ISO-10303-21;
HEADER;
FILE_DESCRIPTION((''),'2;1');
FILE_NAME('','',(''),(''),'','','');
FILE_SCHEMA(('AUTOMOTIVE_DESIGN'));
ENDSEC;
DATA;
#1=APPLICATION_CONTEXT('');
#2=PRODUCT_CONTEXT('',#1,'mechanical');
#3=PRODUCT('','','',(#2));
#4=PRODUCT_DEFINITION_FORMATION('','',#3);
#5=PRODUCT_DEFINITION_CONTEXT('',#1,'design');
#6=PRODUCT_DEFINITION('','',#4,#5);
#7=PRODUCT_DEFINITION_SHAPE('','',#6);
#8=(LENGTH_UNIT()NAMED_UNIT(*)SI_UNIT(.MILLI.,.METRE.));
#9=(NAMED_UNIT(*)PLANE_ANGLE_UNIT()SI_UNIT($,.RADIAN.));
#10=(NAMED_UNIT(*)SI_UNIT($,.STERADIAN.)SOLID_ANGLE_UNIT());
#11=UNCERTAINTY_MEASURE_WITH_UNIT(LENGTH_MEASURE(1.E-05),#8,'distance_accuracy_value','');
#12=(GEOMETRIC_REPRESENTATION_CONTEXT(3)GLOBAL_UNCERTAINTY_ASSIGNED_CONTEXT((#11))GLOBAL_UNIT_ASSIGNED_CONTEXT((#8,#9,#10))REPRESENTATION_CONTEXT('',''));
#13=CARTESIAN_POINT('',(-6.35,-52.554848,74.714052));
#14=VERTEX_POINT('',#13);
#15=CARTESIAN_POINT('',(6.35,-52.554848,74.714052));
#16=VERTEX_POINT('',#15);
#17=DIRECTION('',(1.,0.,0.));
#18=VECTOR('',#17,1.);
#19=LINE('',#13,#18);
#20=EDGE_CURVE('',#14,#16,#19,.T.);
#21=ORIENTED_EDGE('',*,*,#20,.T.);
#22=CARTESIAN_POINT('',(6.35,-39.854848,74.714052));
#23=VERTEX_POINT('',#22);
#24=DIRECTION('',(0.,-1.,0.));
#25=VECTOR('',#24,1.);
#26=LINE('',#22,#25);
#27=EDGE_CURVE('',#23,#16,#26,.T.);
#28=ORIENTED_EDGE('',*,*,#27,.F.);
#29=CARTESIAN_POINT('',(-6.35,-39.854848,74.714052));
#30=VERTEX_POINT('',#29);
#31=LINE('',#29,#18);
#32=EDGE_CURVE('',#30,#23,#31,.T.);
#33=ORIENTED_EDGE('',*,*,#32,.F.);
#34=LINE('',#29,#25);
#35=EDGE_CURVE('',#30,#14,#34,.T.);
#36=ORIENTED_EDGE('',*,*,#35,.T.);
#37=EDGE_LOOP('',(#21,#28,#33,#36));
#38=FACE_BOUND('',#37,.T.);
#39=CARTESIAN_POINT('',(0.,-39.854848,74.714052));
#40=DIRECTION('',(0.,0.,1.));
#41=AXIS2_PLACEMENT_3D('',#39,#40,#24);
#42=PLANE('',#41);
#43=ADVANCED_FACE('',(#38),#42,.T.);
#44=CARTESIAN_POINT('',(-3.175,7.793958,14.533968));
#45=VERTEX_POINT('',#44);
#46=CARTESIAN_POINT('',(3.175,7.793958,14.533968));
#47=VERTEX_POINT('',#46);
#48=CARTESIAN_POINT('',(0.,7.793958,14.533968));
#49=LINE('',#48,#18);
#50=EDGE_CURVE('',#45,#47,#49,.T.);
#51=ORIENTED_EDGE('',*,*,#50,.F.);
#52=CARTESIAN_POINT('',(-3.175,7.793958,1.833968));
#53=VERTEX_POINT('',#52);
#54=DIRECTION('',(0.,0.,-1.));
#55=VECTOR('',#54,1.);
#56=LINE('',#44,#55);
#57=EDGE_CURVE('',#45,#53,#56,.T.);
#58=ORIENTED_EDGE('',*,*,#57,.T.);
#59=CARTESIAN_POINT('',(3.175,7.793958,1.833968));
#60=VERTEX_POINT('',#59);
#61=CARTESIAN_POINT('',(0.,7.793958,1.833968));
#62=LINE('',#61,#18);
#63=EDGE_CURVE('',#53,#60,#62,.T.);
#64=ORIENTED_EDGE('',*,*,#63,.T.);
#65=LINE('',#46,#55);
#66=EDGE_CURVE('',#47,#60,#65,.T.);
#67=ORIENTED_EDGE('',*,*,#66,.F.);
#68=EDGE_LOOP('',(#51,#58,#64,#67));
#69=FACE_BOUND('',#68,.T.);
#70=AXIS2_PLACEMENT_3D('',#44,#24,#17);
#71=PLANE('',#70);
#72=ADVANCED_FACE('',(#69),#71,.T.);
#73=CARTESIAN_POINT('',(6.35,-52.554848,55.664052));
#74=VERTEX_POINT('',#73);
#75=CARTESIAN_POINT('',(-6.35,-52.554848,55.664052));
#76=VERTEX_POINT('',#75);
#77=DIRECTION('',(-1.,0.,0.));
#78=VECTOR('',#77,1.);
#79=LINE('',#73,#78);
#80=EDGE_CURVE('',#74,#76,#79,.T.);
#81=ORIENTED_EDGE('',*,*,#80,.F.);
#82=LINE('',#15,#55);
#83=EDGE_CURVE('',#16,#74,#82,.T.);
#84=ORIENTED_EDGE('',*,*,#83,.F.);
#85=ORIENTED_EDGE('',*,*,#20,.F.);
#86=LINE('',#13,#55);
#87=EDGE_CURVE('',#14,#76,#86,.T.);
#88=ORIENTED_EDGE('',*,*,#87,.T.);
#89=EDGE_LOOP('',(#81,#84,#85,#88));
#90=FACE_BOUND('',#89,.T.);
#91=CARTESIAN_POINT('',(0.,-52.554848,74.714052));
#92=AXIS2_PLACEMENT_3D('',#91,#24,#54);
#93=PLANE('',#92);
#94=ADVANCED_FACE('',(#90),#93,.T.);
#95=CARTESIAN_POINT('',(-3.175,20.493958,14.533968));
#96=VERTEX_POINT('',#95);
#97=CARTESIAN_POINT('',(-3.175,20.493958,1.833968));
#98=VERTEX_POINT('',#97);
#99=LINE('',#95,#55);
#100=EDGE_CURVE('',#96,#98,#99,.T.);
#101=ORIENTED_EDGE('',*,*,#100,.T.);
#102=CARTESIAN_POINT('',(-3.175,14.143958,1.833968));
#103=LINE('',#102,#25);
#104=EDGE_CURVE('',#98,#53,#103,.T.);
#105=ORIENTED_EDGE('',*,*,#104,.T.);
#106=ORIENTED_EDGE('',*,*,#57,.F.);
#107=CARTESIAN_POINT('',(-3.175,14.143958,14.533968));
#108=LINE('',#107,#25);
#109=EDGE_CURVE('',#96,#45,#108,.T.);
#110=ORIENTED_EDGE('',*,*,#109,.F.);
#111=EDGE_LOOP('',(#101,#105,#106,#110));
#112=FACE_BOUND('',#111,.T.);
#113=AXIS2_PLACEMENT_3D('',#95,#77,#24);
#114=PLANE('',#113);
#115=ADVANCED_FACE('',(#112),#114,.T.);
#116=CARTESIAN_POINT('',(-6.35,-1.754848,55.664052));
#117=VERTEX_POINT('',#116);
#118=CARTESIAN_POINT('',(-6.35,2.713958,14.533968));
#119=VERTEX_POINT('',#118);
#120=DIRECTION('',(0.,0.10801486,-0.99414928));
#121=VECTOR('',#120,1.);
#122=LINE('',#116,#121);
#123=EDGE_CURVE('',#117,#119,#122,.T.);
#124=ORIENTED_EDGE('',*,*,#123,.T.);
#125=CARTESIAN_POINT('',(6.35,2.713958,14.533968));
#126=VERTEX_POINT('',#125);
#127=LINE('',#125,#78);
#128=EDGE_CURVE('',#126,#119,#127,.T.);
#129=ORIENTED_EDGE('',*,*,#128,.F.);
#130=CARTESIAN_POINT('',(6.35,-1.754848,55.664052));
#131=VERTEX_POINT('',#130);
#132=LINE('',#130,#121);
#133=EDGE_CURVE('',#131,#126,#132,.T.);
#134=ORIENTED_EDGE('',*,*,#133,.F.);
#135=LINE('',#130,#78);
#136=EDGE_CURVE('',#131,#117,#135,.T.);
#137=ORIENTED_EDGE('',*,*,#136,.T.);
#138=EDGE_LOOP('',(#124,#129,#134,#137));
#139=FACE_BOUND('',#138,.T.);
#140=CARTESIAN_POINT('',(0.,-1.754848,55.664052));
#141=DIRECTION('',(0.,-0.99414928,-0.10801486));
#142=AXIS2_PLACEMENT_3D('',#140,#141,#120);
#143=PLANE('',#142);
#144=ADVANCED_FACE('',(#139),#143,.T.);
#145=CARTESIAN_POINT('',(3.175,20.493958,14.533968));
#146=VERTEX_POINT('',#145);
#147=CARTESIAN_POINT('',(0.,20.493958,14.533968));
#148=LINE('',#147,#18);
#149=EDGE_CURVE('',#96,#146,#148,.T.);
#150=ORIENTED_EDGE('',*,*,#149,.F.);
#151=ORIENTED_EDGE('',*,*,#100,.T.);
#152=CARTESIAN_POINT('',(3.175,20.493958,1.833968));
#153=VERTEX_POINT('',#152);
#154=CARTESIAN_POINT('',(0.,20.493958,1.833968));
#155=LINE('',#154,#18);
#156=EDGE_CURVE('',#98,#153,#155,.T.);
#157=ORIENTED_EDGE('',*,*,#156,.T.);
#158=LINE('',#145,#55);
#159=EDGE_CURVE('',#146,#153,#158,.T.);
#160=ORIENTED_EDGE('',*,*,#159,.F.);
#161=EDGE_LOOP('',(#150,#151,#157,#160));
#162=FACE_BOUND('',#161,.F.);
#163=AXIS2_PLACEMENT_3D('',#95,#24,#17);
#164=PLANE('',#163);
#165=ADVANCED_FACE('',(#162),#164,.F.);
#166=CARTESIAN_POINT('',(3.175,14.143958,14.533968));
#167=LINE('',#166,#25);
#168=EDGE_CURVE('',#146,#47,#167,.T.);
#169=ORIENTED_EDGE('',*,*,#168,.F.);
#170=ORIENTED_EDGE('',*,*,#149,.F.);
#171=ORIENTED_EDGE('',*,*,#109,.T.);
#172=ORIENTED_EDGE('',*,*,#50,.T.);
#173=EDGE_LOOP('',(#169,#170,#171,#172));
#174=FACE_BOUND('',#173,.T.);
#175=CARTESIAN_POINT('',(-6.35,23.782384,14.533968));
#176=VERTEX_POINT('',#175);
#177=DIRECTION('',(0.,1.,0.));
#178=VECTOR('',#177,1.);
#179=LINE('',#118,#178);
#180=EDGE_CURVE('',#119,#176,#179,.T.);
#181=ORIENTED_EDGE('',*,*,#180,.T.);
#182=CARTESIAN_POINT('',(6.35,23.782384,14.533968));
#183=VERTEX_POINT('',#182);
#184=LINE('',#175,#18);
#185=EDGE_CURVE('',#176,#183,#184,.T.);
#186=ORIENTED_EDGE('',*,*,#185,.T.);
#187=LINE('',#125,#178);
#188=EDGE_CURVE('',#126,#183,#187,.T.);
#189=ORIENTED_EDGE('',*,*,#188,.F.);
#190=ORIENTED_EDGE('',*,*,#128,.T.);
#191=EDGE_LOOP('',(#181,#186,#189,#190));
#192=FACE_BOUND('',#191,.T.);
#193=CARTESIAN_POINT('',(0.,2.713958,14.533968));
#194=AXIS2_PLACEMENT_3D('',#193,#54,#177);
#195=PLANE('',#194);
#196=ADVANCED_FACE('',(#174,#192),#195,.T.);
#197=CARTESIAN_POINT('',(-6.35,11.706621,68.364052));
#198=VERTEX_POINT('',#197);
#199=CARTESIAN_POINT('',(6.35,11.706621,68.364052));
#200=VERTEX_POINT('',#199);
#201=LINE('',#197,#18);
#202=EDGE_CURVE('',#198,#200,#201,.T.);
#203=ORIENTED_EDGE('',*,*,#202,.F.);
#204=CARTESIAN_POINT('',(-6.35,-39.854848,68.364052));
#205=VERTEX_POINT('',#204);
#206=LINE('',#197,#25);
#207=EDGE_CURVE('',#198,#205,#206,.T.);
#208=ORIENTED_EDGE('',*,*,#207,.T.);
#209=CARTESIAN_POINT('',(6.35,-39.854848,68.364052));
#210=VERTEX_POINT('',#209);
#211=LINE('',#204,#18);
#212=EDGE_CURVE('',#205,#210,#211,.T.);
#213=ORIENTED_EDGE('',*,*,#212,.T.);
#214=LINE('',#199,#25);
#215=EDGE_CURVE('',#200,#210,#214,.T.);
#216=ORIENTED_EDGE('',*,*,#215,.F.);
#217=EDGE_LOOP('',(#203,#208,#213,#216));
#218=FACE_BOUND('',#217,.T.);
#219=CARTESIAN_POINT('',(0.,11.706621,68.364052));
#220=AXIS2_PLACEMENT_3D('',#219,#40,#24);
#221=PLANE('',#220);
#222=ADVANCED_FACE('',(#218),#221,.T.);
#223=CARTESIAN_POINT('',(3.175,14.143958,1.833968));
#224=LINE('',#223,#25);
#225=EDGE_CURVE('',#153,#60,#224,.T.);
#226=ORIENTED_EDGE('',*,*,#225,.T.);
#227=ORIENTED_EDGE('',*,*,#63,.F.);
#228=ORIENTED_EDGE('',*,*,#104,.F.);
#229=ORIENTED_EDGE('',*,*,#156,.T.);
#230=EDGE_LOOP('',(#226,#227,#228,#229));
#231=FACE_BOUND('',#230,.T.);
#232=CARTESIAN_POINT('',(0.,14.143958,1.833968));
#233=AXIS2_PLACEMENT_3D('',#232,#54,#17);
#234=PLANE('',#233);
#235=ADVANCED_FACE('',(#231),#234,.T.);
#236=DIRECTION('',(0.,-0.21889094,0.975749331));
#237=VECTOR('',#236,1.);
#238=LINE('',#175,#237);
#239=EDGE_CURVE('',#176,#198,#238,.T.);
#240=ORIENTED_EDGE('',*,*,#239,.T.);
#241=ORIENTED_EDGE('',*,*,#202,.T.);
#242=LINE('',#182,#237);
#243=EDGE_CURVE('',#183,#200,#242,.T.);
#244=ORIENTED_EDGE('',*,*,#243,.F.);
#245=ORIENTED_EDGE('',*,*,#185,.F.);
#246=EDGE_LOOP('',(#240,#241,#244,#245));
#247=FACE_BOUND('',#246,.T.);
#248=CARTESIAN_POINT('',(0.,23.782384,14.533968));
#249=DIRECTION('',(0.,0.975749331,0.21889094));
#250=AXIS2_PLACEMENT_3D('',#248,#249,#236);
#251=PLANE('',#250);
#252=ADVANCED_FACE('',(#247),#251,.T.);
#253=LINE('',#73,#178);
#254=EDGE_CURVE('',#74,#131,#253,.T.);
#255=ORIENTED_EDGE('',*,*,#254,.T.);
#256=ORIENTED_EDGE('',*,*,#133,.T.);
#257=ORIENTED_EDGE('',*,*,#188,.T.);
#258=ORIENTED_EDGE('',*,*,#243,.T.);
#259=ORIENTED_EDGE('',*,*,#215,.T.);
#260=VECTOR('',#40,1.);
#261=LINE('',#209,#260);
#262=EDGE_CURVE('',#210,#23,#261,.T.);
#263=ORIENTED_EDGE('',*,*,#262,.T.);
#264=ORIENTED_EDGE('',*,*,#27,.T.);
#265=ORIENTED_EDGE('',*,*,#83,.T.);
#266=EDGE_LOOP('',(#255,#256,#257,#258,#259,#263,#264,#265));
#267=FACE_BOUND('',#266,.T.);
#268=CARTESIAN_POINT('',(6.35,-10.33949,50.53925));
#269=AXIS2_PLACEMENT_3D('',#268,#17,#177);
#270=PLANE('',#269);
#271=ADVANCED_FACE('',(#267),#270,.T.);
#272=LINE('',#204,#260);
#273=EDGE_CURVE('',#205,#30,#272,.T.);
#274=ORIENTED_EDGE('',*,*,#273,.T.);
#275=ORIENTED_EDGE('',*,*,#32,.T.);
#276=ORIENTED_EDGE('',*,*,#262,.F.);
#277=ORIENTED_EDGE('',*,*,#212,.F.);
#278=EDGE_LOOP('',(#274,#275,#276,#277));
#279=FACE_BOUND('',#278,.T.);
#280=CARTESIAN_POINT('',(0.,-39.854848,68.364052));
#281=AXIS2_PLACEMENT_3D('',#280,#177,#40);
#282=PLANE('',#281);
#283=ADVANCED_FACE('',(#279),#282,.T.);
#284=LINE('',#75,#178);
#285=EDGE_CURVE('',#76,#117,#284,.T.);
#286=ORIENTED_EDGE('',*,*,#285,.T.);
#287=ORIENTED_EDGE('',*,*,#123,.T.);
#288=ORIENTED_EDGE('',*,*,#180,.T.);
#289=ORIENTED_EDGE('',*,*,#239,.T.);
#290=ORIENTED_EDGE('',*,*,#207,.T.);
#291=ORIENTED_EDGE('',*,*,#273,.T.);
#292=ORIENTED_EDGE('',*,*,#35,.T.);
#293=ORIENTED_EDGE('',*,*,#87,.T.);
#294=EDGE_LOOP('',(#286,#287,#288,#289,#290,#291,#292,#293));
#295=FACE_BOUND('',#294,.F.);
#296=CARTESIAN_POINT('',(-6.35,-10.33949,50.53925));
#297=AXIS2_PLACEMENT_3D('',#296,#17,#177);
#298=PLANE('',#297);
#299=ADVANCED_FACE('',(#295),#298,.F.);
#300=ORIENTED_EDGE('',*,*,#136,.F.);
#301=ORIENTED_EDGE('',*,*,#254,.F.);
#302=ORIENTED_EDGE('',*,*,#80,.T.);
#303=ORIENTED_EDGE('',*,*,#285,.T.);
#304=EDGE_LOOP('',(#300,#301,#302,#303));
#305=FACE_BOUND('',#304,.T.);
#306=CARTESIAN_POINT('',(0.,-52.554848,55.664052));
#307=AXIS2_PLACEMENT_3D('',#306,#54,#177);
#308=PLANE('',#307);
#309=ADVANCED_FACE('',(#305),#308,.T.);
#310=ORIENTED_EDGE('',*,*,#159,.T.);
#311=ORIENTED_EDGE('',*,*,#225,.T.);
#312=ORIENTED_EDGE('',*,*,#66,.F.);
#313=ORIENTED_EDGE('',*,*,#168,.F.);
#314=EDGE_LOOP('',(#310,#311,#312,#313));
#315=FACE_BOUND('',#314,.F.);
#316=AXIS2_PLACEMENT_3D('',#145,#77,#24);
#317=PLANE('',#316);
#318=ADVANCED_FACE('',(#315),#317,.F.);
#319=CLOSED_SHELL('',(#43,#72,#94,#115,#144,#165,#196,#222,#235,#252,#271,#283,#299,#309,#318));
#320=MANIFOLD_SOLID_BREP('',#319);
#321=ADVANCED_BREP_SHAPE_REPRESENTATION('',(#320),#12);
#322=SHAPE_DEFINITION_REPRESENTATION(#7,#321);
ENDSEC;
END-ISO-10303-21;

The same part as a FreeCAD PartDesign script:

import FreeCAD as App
import Part
import Sketcher

V = App.Vector
Q = App.Units.Quantity


def add_polygon(sketch, points):
    """Adds a closed chain of lines whose ends are joined by coincident constraints."""
    first, n = sketch.GeometryCount, len(points)
    for a, b in zip(points, points[1:] + points[:1]):
        sketch.addGeometry(Part.LineSegment(App.Vector(*a, 0), App.Vector(*b, 0)), False)
    for i in range(n):
        sketch.addConstraint(Sketcher.Constraint("Coincident", first + i, 2, first + (i + 1) % n, 1))

doc = App.newDocument("Part")
body = doc.addObject("PartDesign::Body", "Body")

sketch1 = body.newObject("Sketcher::SketchObject", "Sketch")
sketch1.AttachmentSupport = (doc.getObject("YZ_Plane"), [""])
sketch1.MapMode = "FlatFace"
add_polygon(sketch1, [(2.713958, 14.533968), (23.782384, 14.533968), (11.706621, 68.364052), (-39.854848, 68.364052), (-39.854848, 74.714052), (-52.554848, 74.714052), (-52.554848, 55.664052), (-1.754848, 55.664052)])
sketch1.addConstraint([
    Sketcher.Constraint("Horizontal", 0),
    Sketcher.Constraint("Horizontal", 2),
    Sketcher.Constraint("Vertical", 3),
    Sketcher.Constraint("Horizontal", 4),
    Sketcher.Constraint("Vertical", 5),
    Sketcher.Constraint("Horizontal", 6),
    Sketcher.Constraint("DistanceX", 6, 1, 6, 2, Q("2 in")),
    Sketcher.Constraint("DistanceX", 4, 2, 4, 1, Q("0.5 in")),
    Sketcher.Constraint("DistanceY", 3, 1, 3, 2, Q("0.25 in")),
    Sketcher.Constraint("DistanceY", 5, 2, 5, 1, Q("0.75 in")),
    Sketcher.Constraint("DistanceX", 2, 2, 2, 1, Q("51.561469 mm")),
    Sketcher.Constraint("Distance", 7, Q("41.372141 mm")),
    Sketcher.Constraint("DistanceX", 0, 1, 0, 2, Q("21.068426 mm")),
    Sketcher.Constraint("DistanceX", -1, 1, 1, 2, Q("11.706621 mm")),
    Sketcher.Constraint("DistanceY", -1, 1, 1, 2, Q("68.364052 mm")),
    Sketcher.Constraint("DistanceX", 2, 2, 0, 2, Q("63.637232 mm")),
])
pad1 = body.newObject("PartDesign::Pad", "Pad")
pad1.Profile = sketch1
pad1.Length = Q("0.5 in")
pad1.Midplane = True

sketch2 = body.newObject("Sketcher::SketchObject", "Sketch001")
sketch2.AttachmentSupport = (doc.getObject("XY_Plane"), [""])
sketch2.MapMode = "FlatFace"
sketch2.AttachmentOffset = App.Placement(V(0, 0, 14.533968), App.Rotation())
add_polygon(sketch2, [(-3.175, 7.793958), (-3.175, 20.493958), (3.175, 20.493958), (3.175, 7.793958)])
sketch2.addConstraint([
    Sketcher.Constraint("Vertical", 0),
    Sketcher.Constraint("Horizontal", 1),
    Sketcher.Constraint("Vertical", 2),
    Sketcher.Constraint("Horizontal", 3),
    Sketcher.Constraint("DistanceY", 0, 1, 0, 2, Q("0.5 in")),
    Sketcher.Constraint("DistanceX", 1, 1, 1, 2, Q("0.25 in")),
    Sketcher.Constraint("DistanceX", 0, 2, -1, 1, Q("0.125 in")),
    Sketcher.Constraint("DistanceY", -1, 1, 0, 2, Q("20.493958 mm")),
])
pad2 = body.newObject("PartDesign::Pad", "Pad001")
pad2.Profile = sketch2
pad2.Length = Q("0.5 in")
pad2.Reversed = True

doc.recompute()
